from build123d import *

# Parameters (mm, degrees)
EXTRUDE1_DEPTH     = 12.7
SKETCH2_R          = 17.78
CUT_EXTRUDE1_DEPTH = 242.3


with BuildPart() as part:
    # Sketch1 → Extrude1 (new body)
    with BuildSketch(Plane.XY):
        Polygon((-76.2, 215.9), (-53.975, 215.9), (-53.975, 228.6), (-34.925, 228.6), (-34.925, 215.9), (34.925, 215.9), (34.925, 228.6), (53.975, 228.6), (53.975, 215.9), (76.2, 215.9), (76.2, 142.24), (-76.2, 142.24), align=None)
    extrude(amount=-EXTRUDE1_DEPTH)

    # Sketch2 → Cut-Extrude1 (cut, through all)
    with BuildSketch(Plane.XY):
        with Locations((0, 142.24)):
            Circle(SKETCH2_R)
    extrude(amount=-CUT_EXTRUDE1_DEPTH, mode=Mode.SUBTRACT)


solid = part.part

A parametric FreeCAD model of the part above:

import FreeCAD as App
import Part
import Sketcher
from FreeCAD import Vector
Q = App.Units.Quantity


def add_polygon(sketch, points):
    """Adds a closed chain of lines whose ends are joined by coincident constraints."""
    first, n = sketch.GeometryCount, len(points)
    for a, b in zip(points, points[1:] + points[:1]):
        sketch.addGeometry(Part.LineSegment(App.Vector(*a, 0), App.Vector(*b, 0)), False)
    for i in range(n):
        sketch.addConstraint(Sketcher.Constraint("Coincident", first + i, 2, first + (i + 1) % n, 1))

doc = App.newDocument("Part")
params = doc.addObject("Spreadsheet::Sheet", "Params")
for row, (alias, value) in enumerate([
    ("sketch1_width", "6 in"),
    ("sketch1_height", "2.9 in"),
    ("sketch1_height2", "0.5 in"),
    ("sketch1_width2", "0.75 in"),
    ("sketch1_width3", "2.75 in"),
    ("pad1_length", "0.5 in"),
    ("sketch2_diameter", "1.4 in"),
], start=1):
    params.set(f"A{row}", alias)
    params.set(f"B{row}", "=" + value)
    params.setAlias(f"B{row}", alias)

body = doc.addObject("PartDesign::Body", "Body")

sketch1 = body.newObject("Sketcher::SketchObject", "Sketch")
sketch1.AttachmentSupport = (doc.getObject("XY_Plane"), [""])
sketch1.MapMode = "FlatFace"
add_polygon(sketch1, [(-54, 216), (-76, 216), (-76, 142), (76, 142), (76, 216), (54, 216), (54, 229), (35, 229), (35, 216), (-35, 216), (-35, 229), (-54, 229)])
sketch1.addConstraint([
    Sketcher.Constraint("Horizontal", 0),
    Sketcher.Constraint("Vertical", 1),
    Sketcher.Constraint("Horizontal", 2),
    Sketcher.Constraint("Vertical", 3),
    Sketcher.Constraint("Horizontal", 4),
    Sketcher.Constraint("Vertical", 5),
    Sketcher.Constraint("Horizontal", 6),
    Sketcher.Constraint("Vertical", 7),
    Sketcher.Constraint("Horizontal", 8),
    Sketcher.Constraint("Vertical", 9),
    Sketcher.Constraint("Horizontal", 10),
    Sketcher.Constraint("Vertical", 11),
    Sketcher.Constraint("Symmetric", 0, 2, 3, 2, -2),
    Sketcher.Constraint("Symmetric", 6, 2, 9, 2, -2),
    Sketcher.Constraint("Horizontal", 4, 2, 7, 2),
    Sketcher.Constraint("Equal", 0, 4),
    Sketcher.Constraint("DistanceX", 2, 1, 2, 2, Q("6 in")),
    Sketcher.Constraint("DistanceY", 1, 2, 1, 1, Q("2.9 in")),
    Sketcher.Constraint("DistanceY", 5, 1, 5, 2, Q("0.5 in")),
    Sketcher.Constraint("DistanceY", -1, 1, 5, 2, Q("9 in")),
    Sketcher.Constraint("DistanceX", 6, 2, 6, 1, Q("0.75 in")),
    Sketcher.Constraint("DistanceX", 8, 2, 8, 1, Q("2.75 in")),
])
sketch1.setExpression("Constraints[28]", "Params.sketch1_width")
sketch1.setExpression("Constraints[29]", "Params.sketch1_height")
sketch1.setExpression("Constraints[30]", "Params.sketch1_height2")
sketch1.setExpression("Constraints[32]", "Params.sketch1_width2")
sketch1.setExpression("Constraints[33]", "Params.sketch1_width3")
pad1 = body.newObject("PartDesign::Pad", "Pad")
pad1.Profile = sketch1
pad1.setExpression("Length", "Params.pad1_length")
pad1.Reversed = True

sketch2 = body.newObject("Sketcher::SketchObject", "Sketch001")
sketch2.AttachmentSupport = (doc.getObject("XY_Plane"), [""])
sketch2.MapMode = "FlatFace"
sketch2.addGeometry(Part.Circle(Vector(0, 142, 0), Vector(0, 0, 1), 18), False)
sketch2.addConstraint([
    Sketcher.Constraint("PointOnObject", 0, 3, -2),
    Sketcher.Constraint("Diameter", 0, Q("1.4 in")),
    Sketcher.Constraint("DistanceY", -1, 1, 0, 3, Q("5.6 in")),
])
sketch2.setExpression("Constraints[1]", "Params.sketch2_diameter")
pocket1 = body.newObject("PartDesign::Pocket", "Pocket")
pocket1.Profile = sketch2
pocket1.Type = "ThroughAll"

doc.recompute()
